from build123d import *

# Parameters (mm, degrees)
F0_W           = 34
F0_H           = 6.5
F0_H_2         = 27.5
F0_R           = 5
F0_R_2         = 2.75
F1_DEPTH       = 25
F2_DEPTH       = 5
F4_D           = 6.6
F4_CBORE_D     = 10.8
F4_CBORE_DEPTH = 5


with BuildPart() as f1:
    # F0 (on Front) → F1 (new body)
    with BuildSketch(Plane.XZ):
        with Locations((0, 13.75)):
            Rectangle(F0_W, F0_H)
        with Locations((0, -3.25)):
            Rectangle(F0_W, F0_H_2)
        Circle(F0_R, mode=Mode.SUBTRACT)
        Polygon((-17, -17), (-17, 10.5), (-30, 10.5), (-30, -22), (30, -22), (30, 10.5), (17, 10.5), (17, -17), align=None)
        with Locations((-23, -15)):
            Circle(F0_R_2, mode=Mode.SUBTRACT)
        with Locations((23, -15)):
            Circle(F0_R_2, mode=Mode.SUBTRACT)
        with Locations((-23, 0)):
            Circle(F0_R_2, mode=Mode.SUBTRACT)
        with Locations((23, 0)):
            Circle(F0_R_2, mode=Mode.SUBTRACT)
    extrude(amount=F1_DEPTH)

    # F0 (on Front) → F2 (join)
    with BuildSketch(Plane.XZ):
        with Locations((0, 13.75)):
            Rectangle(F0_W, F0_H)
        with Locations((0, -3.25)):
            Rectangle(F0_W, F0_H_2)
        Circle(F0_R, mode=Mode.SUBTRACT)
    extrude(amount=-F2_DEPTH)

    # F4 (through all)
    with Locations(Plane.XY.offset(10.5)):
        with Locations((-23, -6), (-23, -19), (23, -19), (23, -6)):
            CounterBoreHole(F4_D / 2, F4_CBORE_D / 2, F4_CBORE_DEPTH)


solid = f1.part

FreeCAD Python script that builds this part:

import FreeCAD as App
import Part
import Sketcher

doc = App.newDocument("Part")
params = doc.addObject("Spreadsheet::Sheet", "Params")
for row, (alias, value) in enumerate([
    ("sketch1_diameter", "10 mm"),
    ("sketch1_diameter2", "5.5 mm"),
    ("sketch1_width", "13 mm"),
    ("sketch1_width2", "60 mm"),
    ("sketch1_height", "6.5 mm"),
    ("pad1_length", "25 mm"),
    ("sketch2_diameter", "10 mm"),
    ("sketch2_width", "34 mm"),
    ("pad2_length", "5 mm"),
    ("sketch3_diameter", "6.6 mm"),
    ("hole_diameter", "6.6 mm"),
    ("hole_cbore_diameter", "10.8 mm"),
    ("hole_cbore_depth", "5 mm"),
], start=1):
    params.set(f"A{row}", alias)
    params.set(f"B{row}", "=" + value)
    params.setAlias(f"B{row}", alias)

body = doc.addObject("PartDesign::Body", "Body")

# Sketch on XZ plane
sketch1 = body.newObject("Sketcher::SketchObject", "Sketch")
sketch1.AttachmentSupport = (doc.getObject("XZ_Plane"), [""])
sketch1.MapMode = "FlatFace"
sketch1.addGeometry(Part.LineSegment(App.Vector(-17, 17, 0), App.Vector(-17, 10.5, 0)), False)
sketch1.addGeometry(Part.LineSegment(App.Vector(-17, 10.5, 0), App.Vector(-30, 10.5, 0)), False)
sketch1.addGeometry(Part.LineSegment(App.Vector(-30, 10.5, 0), App.Vector(-30, -22, 0)), False)
sketch1.addGeometry(Part.LineSegment(App.Vector(-30, -22, 0), App.Vector(30, -22, 0)), False)
sketch1.addGeometry(Part.LineSegment(App.Vector(30, -22, 0), App.Vector(30, 10.5, 0)), False)
sketch1.addGeometry(Part.LineSegment(App.Vector(30, 10.5, 0), App.Vector(17, 10.5, 0)), False)
sketch1.addGeometry(Part.LineSegment(App.Vector(17, 10.5, 0), App.Vector(17, 17, 0)), False)
sketch1.addGeometry(Part.LineSegment(App.Vector(17, 17, 0), App.Vector(-17, 17, 0)), False)
sketch1.addGeometry(Part.Circle(App.Vector(-23, -15, 0), App.Vector(0, 0, 1), 2.8), False)
sketch1.addGeometry(Part.Circle(App.Vector(23, -15, 0), App.Vector(0, 0, 1), 2.8), False)
sketch1.addGeometry(Part.Circle(App.Vector(-23, 0, 0), App.Vector(0, 0, 1), 2.8), False)
sketch1.addGeometry(Part.Circle(App.Vector(0, 0, 0), App.Vector(0, 0, 1), 5), False)
sketch1.addGeometry(Part.Circle(App.Vector(23, 0, 0), App.Vector(0, 0, 1), 2.8), False)
sketch1.addConstraint(Sketcher.Constraint("Coincident", 0, 2, 1, 1))
sketch1.addConstraint(Sketcher.Constraint("Coincident", 1, 2, 2, 1))
sketch1.addConstraint(Sketcher.Constraint("Coincident", 2, 2, 3, 1))
sketch1.addConstraint(Sketcher.Constraint("Coincident", 3, 2, 4, 1))
sketch1.addConstraint(Sketcher.Constraint("Coincident", 4, 2, 5, 1))
sketch1.addConstraint(Sketcher.Constraint("Coincident", 5, 2, 6, 1))
sketch1.addConstraint(Sketcher.Constraint("Coincident", 6, 2, 7, 1))
sketch1.addConstraint(Sketcher.Constraint("Coincident", 7, 2, 0, 1))
sketch1.addConstraint(Sketcher.Constraint("Vertical", 0))
sketch1.addConstraint(Sketcher.Constraint("Horizontal", 1))
sketch1.addConstraint(Sketcher.Constraint("Vertical", 2))
sketch1.addConstraint(Sketcher.Constraint("Horizontal", 3))
sketch1.addConstraint(Sketcher.Constraint("Vertical", 4))
sketch1.addConstraint(Sketcher.Constraint("Horizontal", 5))
sketch1.addConstraint(Sketcher.Constraint("Vertical", 6))
sketch1.addConstraint(Sketcher.Constraint("Horizontal", 7))
sketch1.addConstraint(Sketcher.Constraint("Coincident", 11, 3, -1, 1))
sketch1.addConstraint(Sketcher.Constraint("Equal", 8, 9))
sketch1.addConstraint(Sketcher.Constraint("Equal", 9, 10))
sketch1.addConstraint(Sketcher.Constraint("Equal", 10, 12))
sketch1.addConstraint(Sketcher.Constraint("Symmetric", 10, 3, 12, 3, -1, 1))
sketch1.addConstraint(Sketcher.Constraint("Symmetric", 8, 3, 9, 3, -2))
sketch1.addConstraint(Sketcher.Constraint("Symmetric", 1, 2, 4, 2, -2))
sketch1.addConstraint(Sketcher.Constraint("PointOnObject", 10, 3, -1))
sketch1.addConstraint(Sketcher.Constraint("Vertical", 8, 3, 10, 3))
sketch1.addConstraint(Sketcher.Constraint("Equal", 1, 5))
sketch1.addConstraint(Sketcher.Constraint("Diameter", 11, 10.0))
sketch1.addConstraint(Sketcher.Constraint("Diameter", 8, 5.5))
sketch1.addConstraint(Sketcher.Constraint("DistanceX", 1, 2, 1, 1, 13.0))
sketch1.addConstraint(Sketcher.Constraint("DistanceX", 3, 1, 3, 2, 60.0))
sketch1.addConstraint(Sketcher.Constraint("DistanceY", 0, 2, 0, 1, 6.5))
sketch1.addConstraint(Sketcher.Constraint("DistanceY", 2, 2, 2, 1, 32.5))
sketch1.addConstraint(Sketcher.Constraint("DistanceX", 8, 3, -1, 1, 23.0))
sketch1.addConstraint(Sketcher.Constraint("DistanceY", 8, 3, -1, 1, 15.0))
sketch1.addConstraint(Sketcher.Constraint("DistanceY", 2, 2, -1, 1, 22.0))
sketch1.setExpression("Constraints[26]", "Params.sketch1_diameter")
sketch1.setExpression("Constraints[27]", "Params.sketch1_diameter2")
sketch1.setExpression("Constraints[28]", "Params.sketch1_width")
sketch1.setExpression("Constraints[29]", "Params.sketch1_width2")
sketch1.setExpression("Constraints[30]", "Params.sketch1_height")
pad1 = body.newObject("PartDesign::Pad", "Pad")
pad1.Profile = sketch1
pad1.setExpression("Length", "Params.pad1_length")

# Sketch on XZ plane
sketch2 = body.newObject("Sketcher::SketchObject", "Sketch001")
sketch2.AttachmentSupport = (doc.getObject("XZ_Plane"), [""])
sketch2.MapMode = "FlatFace"
sketch2.addGeometry(Part.LineSegment(App.Vector(-17, 17, 0), App.Vector(-17, -17, 0)), False)
sketch2.addGeometry(Part.LineSegment(App.Vector(-17, -17, 0), App.Vector(17, -17, 0)), False)
sketch2.addGeometry(Part.LineSegment(App.Vector(17, -17, 0), App.Vector(17, 17, 0)), False)
sketch2.addGeometry(Part.LineSegment(App.Vector(17, 17, 0), App.Vector(-17, 17, 0)), False)
sketch2.addGeometry(Part.Circle(App.Vector(0, 0, 0), App.Vector(0, 0, 1), 5), False)
sketch2.addConstraint(Sketcher.Constraint("Coincident", 0, 2, 1, 1))
sketch2.addConstraint(Sketcher.Constraint("Coincident", 1, 2, 2, 1))
sketch2.addConstraint(Sketcher.Constraint("Coincident", 2, 2, 3, 1))
sketch2.addConstraint(Sketcher.Constraint("Coincident", 3, 2, 0, 1))
sketch2.addConstraint(Sketcher.Constraint("Vertical", 0))
sketch2.addConstraint(Sketcher.Constraint("Horizontal", 1))
sketch2.addConstraint(Sketcher.Constraint("Vertical", 2))
sketch2.addConstraint(Sketcher.Constraint("Horizontal", 3))
sketch2.addConstraint(Sketcher.Constraint("Coincident", 4, 3, -1, 1))
sketch2.addConstraint(Sketcher.Constraint("Symmetric", 0, 2, 2, 2, -1, 1))
sketch2.addConstraint(Sketcher.Constraint("Equal", 3, 0))
sketch2.addConstraint(Sketcher.Constraint("Diameter", 4, 10.0))
sketch2.addConstraint(Sketcher.Constraint("DistanceX", 1, 1, 1, 2, 34.0))
sketch2.setExpression("Constraints[11]", "Params.sketch2_diameter")
sketch2.setExpression("Constraints[12]", "Params.sketch2_width")
pad2 = body.newObject("PartDesign::Pad", "Pad001")
pad2.Profile = sketch2
pad2.setExpression("Length", "Params.pad2_length")
pad2.Reversed = True

# Sketch on XY plane
sketch3 = body.newObject("Sketcher::SketchObject", "Sketch002")
sketch3.AttachmentSupport = (doc.getObject("XY_Plane"), [""])
sketch3.MapMode = "FlatFace"
sketch3.AttachmentOffset = App.Placement(App.Vector(0, 0, 10.5), App.Rotation())
sketch3.addGeometry(Part.Circle(App.Vector(-23, -6, 0), App.Vector(0, 0, 1), 3.3), False)
sketch3.addGeometry(Part.Circle(App.Vector(-23, -19, 0), App.Vector(0, 0, 1), 3.3), False)
sketch3.addGeometry(Part.Circle(App.Vector(23, -19, 0), App.Vector(0, 0, 1), 3.3), False)
sketch3.addGeometry(Part.Circle(App.Vector(23, -6, 0), App.Vector(0, 0, 1), 3.3), False)
sketch3.addConstraint(Sketcher.Constraint("Equal", 0, 1))
sketch3.addConstraint(Sketcher.Constraint("Equal", 1, 2))
sketch3.addConstraint(Sketcher.Constraint("Equal", 2, 3))
sketch3.addConstraint(Sketcher.Constraint("Symmetric", 1, 3, 2, 3, -2))
sketch3.addConstraint(Sketcher.Constraint("Symmetric", 0, 3, 3, 3, -2))
sketch3.addConstraint(Sketcher.Constraint("Vertical", 0, 3, 1, 3))
sketch3.addConstraint(Sketcher.Constraint("Diameter", 0, 6.6))
sketch3.addConstraint(Sketcher.Constraint("DistanceX", 0, 3, -1, 1, 23.0))
sketch3.addConstraint(Sketcher.Constraint("DistanceY", 0, 3, -1, 1, 6.0))
sketch3.addConstraint(Sketcher.Constraint("DistanceY", 1, 3, -1, 1, 19.0))
sketch3.setExpression("Constraints[6]", "Params.sketch3_diameter")
doc.recompute()
hole = body.newObject("PartDesign::Hole", "Hole")
hole.Profile = sketch3
hole.ThreadType = "None"
hole.setExpression("Diameter", "Params.hole_diameter")
hole.DepthType = "ThroughAll"
hole.HoleCutType = "Counterbore"
hole.setExpression("HoleCutDiameter", "Params.hole_cbore_diameter")
hole.setExpression("HoleCutDepth", "Params.hole_cbore_depth")

doc.recompute()
